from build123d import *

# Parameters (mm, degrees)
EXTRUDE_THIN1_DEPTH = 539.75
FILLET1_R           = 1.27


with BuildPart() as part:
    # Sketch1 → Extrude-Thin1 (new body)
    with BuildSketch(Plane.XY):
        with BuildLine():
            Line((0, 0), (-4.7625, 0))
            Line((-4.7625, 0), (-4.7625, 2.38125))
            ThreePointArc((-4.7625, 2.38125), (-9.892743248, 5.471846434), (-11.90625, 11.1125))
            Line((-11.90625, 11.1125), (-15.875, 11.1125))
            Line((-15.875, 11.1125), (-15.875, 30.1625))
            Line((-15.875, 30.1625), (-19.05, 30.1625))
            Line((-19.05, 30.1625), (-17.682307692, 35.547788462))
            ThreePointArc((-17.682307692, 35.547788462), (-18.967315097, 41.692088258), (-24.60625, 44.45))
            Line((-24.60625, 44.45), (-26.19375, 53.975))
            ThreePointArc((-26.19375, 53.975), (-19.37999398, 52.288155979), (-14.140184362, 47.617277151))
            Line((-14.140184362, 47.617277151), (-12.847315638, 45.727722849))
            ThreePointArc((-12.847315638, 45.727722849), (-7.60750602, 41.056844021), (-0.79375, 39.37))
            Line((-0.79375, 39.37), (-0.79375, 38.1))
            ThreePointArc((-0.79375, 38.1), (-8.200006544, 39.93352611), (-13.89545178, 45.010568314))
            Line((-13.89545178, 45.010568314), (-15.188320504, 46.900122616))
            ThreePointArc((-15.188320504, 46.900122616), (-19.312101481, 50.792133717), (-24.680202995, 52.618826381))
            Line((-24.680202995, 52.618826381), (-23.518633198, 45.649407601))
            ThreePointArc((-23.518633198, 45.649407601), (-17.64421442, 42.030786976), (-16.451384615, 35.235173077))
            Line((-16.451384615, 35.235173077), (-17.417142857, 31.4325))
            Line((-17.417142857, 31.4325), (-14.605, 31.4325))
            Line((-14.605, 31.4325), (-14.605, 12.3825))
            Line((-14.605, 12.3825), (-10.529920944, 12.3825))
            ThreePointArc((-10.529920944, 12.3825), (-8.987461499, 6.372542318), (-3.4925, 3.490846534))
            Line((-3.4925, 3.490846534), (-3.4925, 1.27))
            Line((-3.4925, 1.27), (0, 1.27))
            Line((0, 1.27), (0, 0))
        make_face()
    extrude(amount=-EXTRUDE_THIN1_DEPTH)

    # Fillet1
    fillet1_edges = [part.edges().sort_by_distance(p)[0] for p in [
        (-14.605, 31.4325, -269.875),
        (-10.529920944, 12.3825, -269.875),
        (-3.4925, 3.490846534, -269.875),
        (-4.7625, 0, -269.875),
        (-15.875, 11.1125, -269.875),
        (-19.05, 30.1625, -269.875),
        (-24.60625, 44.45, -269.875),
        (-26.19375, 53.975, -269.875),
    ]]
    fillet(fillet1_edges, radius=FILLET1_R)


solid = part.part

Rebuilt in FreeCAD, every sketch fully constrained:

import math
import FreeCAD as App
import Part
import Sketcher
from FreeCAD import Vector
Q = App.Units.Quantity


def edges_at(feature, points):
    """Names of the edges that pass closest to the given points."""
    edges = feature.Shape.Edges
    near = lambda p: min(range(len(edges)), key=lambda i: edges[i].distToShape(Part.Vertex(*p))[0])
    return sorted({f"Edge{near(p) + 1}" for p in points})

doc = App.newDocument("Part")
params = doc.addObject("Spreadsheet::Sheet", "Params")
for row, (alias, value) in enumerate([
    ("sketch1_radius", "0.525 in"),
    ("sketch1_radius2", "0.625 in"),
    ("sketch1_radius3", "0.28125 in"),
    ("sketch1_height", "0.75 in"),
    ("sketch1_width", "0.1875 in"),
    ("pad1_length", "21.25 in"),
    ("fillet_radius", "0.05 in"),
], start=1):
    params.set(f"A{row}", alias)
    params.set(f"B{row}", "=" + value)
    params.setAlias(f"B{row}", alias)

body = doc.addObject("PartDesign::Body", "Body")

# Sketch on XY plane
sketch1 = body.newObject("Sketcher::SketchObject", "Sketch")
sketch1.AttachmentSupport = (doc.getObject("XY_Plane"), [""])
sketch1.MapMode = "FlatFace"
sketch1.addGeometry([
    Part.LineSegment(Vector(-4.8, 0, 0), Vector(0, 0, 0)),  # 0
    Part.LineSegment(Vector(0, 0, 0), Vector(0, 1.3, 0)),  # 1
    Part.LineSegment(Vector(0, 1.3, 0), Vector(-3.5, 1.3, 0)),  # 2
    Part.LineSegment(Vector(-3.5, 1.3, 0), Vector(-3.5, 3.5, 0)),  # 3
    Part.ArcOfCircle(Part.Circle(Vector(-3, 11.1, 0), Vector(0, 0, 1), 7.6), math.radians(170), math.radians(266)),  # 4
    Part.LineSegment(Vector(-10.5, 12.4, 0), Vector(-14.6, 12.4, 0)),  # 5
    Part.LineSegment(Vector(-14.6, 12.4, 0), Vector(-14.6, 31.4, 0)),  # 6
    Part.LineSegment(Vector(-14.6, 31.4, 0), Vector(-17.4, 31.4, 0)),  # 7
    Part.LineSegment(Vector(-17.4, 31.4, 0), Vector(-16.5, 35.2, 0)),  # 8
    Part.ArcOfCircle(Part.Circle(Vector(-24.6, 37.3, 0), Vector(0, 0, 1), 8.4), math.radians(-14), math.radians(83)),  # 9
    Part.LineSegment(Vector(-23.5, 45.6, 0), Vector(-24.7, 52.6, 0)),  # 10
    Part.ArcOfCircle(Part.Circle(Vector(-26.2, 39.4, 0), Vector(0, 0, 1), 13.3), math.radians(34), math.radians(83)),  # 11
    Part.LineSegment(Vector(-15.2, 46.9, 0), Vector(-13.9, 45, 0)),  # 12
    Part.ArcOfCircle(Part.Circle(Vector(-0.8, 54, 0), Vector(0, 0, 1), 15.9), math.radians(-146), math.radians(-90)),  # 13
    Part.LineSegment(Vector(-0.8, 38.1, 0), Vector(-0.8, 39.4, 0)),  # 14
    Part.ArcOfCircle(Part.Circle(Vector(-0.8, 54, 0), Vector(0, 0, 1), 14.6), math.radians(-146), math.radians(-90)),  # 15
    Part.LineSegment(Vector(-12.8, 45.7, 0), Vector(-14.1, 47.6, 0)),  # 16
    Part.ArcOfCircle(Part.Circle(Vector(-26.2, 39.4, 0), Vector(0, 0, 1), 14.6), math.radians(34), math.radians(90)),  # 17
    Part.LineSegment(Vector(-26.2, 54, 0), Vector(-24.6, 44.5, 0)),  # 18
    Part.ArcOfCircle(Part.Circle(Vector(-24.6, 37.3, 0), Vector(0, 0, 1), 7.1), math.radians(-14), math.radians(90)),  # 19
    Part.LineSegment(Vector(-17.7, 35.5, 0), Vector(-19.1, 30.2, 0)),  # 20
    Part.LineSegment(Vector(-19.1, 30.2, 0), Vector(-15.9, 30.2, 0)),  # 21
    Part.LineSegment(Vector(-15.9, 30.2, 0), Vector(-15.9, 11.1, 0)),  # 22
    Part.LineSegment(Vector(-15.9, 11.1, 0), Vector(-11.9, 11.1, 0)),  # 23
    Part.ArcOfCircle(Part.Circle(Vector(-3, 11.1, 0), Vector(0, 0, 1), 8.9), math.radians(180), math.radians(259)),  # 24
    Part.LineSegment(Vector(-4.8, 2.4, 0), Vector(-4.8, 0, 0)),  # 25
], False)
sketch1.addConstraint([
    Sketcher.Constraint("Coincident", 0, 2, 1, 1),
    Sketcher.Constraint("Coincident", 1, 2, 2, 1),
    Sketcher.Constraint("Coincident", 2, 2, 3, 1),
    Sketcher.Constraint("Coincident", 3, 2, 4, 2),
    Sketcher.Constraint("Coincident", 4, 1, 5, 1),
    Sketcher.Constraint("Coincident", 5, 2, 6, 1),
    Sketcher.Constraint("Coincident", 6, 2, 7, 1),
    Sketcher.Constraint("Coincident", 7, 2, 8, 1),
    Sketcher.Constraint("Tangent", 8, 2, 9, 1),
    Sketcher.Constraint("Coincident", 9, 2, 10, 1),
    Sketcher.Constraint("Coincident", 10, 2, 11, 2),
    Sketcher.Constraint("Tangent", 11, 1, 12, 1),
    Sketcher.Constraint("Tangent", 12, 2, 13, 1),
    Sketcher.Constraint("Coincident", 13, 2, 14, 1),
    Sketcher.Constraint("Coincident", 14, 2, 15, 2),
    Sketcher.Constraint("Tangent", 15, 1, 16, 1),
    Sketcher.Constraint("Tangent", 16, 2, 17, 1),
    Sketcher.Constraint("Coincident", 17, 2, 18, 1),
    Sketcher.Constraint("Coincident", 18, 2, 19, 2),
    Sketcher.Constraint("Tangent", 19, 1, 20, 1),
    Sketcher.Constraint("Coincident", 20, 2, 21, 1),
    Sketcher.Constraint("Coincident", 21, 2, 22, 1),
    Sketcher.Constraint("Coincident", 22, 2, 23, 1),
    Sketcher.Constraint("Coincident", 23, 2, 24, 1),
    Sketcher.Constraint("Coincident", 24, 2, 25, 1),
    Sketcher.Constraint("Coincident", 25, 2, 0, 1),
    Sketcher.Constraint("Horizontal", 0),
    Sketcher.Constraint("Vertical", 1),
    Sketcher.Constraint("Horizontal", 2),
    Sketcher.Constraint("Vertical", 3),
    Sketcher.Constraint("Horizontal", 5),
    Sketcher.Constraint("Vertical", 6),
    Sketcher.Constraint("Horizontal", 7),
    Sketcher.Constraint("Vertical", 14),
    Sketcher.Constraint("Horizontal", 21),
    Sketcher.Constraint("Vertical", 22),
    Sketcher.Constraint("Horizontal", 23),
    Sketcher.Constraint("Vertical", 25),
    Sketcher.Constraint("Coincident", 0, 2, -1, 1),
    Sketcher.Constraint("Coincident", 15, 3, 13, 3),
    Sketcher.Constraint("Coincident", 17, 3, 11, 3),
    Sketcher.Constraint("Coincident", 19, 3, 9, 3),
    Sketcher.Constraint("Coincident", 24, 3, 4, 3),
    Sketcher.Constraint("Equal", 15, 17),
    Sketcher.Constraint("Parallel", 12, 16),
    Sketcher.Constraint("Parallel", 10, 18),
    Sketcher.Constraint("Parallel", 8, 20),
    Sketcher.Constraint("Horizontal", 17, 3, 14, 2),
    Sketcher.Constraint("Horizontal", 24, 3, 22, 2),
    Sketcher.Constraint("Vertical", 15, 3, 13, 2),
    Sketcher.Constraint("Vertical", 11, 3, 17, 2),
    Sketcher.Constraint("Vertical", 19, 3, 18, 2),
    Sketcher.Constraint("Equal", 1, 14),
    Sketcher.Constraint("Equal", 6, 22),
    Sketcher.Constraint("Radius", 11, Q("0.525 in")),
    Sketcher.Constraint("Radius", 13, Q("0.625 in")),
    Sketcher.Constraint("Radius", 19, Q("0.28125 in")),
    Sketcher.Constraint("DistanceX", 11, 3, 13, 3, Q("1 in")),
    Sketcher.Constraint("DistanceY", 6, 1, 6, 2, Q("0.75 in")),
    Sketcher.Constraint("DistanceY", -1, 1, 13, 2, Q("1.5 in")),
    Sketcher.Constraint("DistanceY", 17, 3, 18, 2, Q("0.2 in")),
    Sketcher.Constraint("DistanceX", 0, 1, 0, 2, Q("0.1875 in")),
    Sketcher.Constraint("DistanceX", 21, 1, 21, 2, Q("0.125 in")),
    Sketcher.Constraint("DistanceX", 23, 1, 23, 2, Q("0.15625 in")),
    Sketcher.Constraint("DistanceY", 25, 2, 25, 1, Q("0.09375 in")),
    Sketcher.Constraint("DistanceX", 20, 2, -1, 1, Q("0.75 in")),
    Sketcher.Constraint("DistanceY", 4, 3, 4, 1, Q("0.05 in")),
    Sketcher.Constraint("DistanceX", 21, 2, 6, 2, Q("0.05 in")),
    Sketcher.Constraint("DistanceX", 24, 2, 3, 2, Q("0.05 in")),
    Sketcher.Constraint("Distance", 20, Q("0.21875 in")),
    Sketcher.Constraint("DistanceY", -1, 1, 4, 3, Q("0.4375 in")),
    Sketcher.Constraint("DistanceX", 11, 3, -1, 1, Q("1.03125 in")),
    Sketcher.Constraint("Radius", 4, 7.637639),
    Sketcher.Constraint("Radius", 9, 8.41375),
    Sketcher.Constraint("DistanceX", 9, 2, 8, 2, 7.067249),
])
sketch1.setExpression("Constraints[54]", "Params.sketch1_radius")
sketch1.setExpression("Constraints[55]", "Params.sketch1_radius2")
sketch1.setExpression("Constraints[56]", "Params.sketch1_radius3")
sketch1.setExpression("Constraints[58]", "Params.sketch1_height")
sketch1.setExpression("Constraints[61]", "Params.sketch1_width")
pad1 = body.newObject("PartDesign::Pad", "Pad")
pad1.Profile = sketch1
pad1.setExpression("Length", "Params.pad1_length")
pad1.Reversed = True
doc.recompute()

fillet = body.newObject("PartDesign::Fillet", "Fillet")
fillet.Base = (pad1, edges_at(pad1, [
    (-14.605, 31.433, -269.875),
    (-10.53, 12.383, -269.875),
    (-3.493, 3.491, -269.875),
    (-4.763, 0, -269.875),
    (-15.875, 11.113, -269.875),
    (-19.05, 30.163, -269.875),
    (-24.606, 44.45, -269.875),
    (-26.194, 53.975, -269.875),
]))
fillet.setExpression("Radius", "Params.fillet_radius")

doc.recompute()
